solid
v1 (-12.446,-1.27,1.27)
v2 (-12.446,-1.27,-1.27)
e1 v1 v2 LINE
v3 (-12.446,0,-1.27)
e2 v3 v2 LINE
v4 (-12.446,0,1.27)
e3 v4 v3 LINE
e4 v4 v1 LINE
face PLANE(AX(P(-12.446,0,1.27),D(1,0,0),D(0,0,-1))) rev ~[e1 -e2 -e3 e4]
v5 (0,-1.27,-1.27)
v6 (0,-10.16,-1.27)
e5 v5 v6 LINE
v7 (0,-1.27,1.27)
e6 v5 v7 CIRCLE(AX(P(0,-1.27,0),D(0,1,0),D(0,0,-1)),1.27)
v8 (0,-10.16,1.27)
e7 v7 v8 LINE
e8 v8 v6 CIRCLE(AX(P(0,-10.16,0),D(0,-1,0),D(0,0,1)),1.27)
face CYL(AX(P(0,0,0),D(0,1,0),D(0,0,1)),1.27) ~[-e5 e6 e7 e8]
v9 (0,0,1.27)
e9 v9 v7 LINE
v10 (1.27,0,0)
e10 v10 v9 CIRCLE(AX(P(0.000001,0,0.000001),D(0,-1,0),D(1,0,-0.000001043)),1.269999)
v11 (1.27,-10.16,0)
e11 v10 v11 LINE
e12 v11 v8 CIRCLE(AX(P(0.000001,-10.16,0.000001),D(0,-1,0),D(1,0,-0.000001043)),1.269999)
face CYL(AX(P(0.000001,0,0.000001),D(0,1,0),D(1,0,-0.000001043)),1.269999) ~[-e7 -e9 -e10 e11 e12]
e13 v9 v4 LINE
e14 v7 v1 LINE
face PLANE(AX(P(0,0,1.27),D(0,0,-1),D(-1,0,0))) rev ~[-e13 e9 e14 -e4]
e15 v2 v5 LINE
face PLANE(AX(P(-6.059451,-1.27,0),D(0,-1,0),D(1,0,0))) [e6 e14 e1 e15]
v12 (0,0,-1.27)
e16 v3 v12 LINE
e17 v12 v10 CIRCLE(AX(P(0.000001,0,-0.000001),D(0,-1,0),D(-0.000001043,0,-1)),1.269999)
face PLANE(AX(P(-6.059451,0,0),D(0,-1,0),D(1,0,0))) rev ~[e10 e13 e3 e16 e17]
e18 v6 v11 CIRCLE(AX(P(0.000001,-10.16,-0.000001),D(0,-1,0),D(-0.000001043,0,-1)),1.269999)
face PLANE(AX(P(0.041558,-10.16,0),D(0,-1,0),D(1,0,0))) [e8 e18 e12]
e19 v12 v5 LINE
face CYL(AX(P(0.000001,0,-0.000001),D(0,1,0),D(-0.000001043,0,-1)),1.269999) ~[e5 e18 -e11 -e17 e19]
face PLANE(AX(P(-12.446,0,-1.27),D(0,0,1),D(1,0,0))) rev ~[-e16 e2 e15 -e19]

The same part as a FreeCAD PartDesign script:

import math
import FreeCAD as App
import Part
import Sketcher
Q = App.Units.Quantity

doc = App.newDocument("Part")
body = doc.addObject("PartDesign::Body", "Body")

# Sketch on XZ plane
sketch1 = body.newObject("Sketcher::SketchObject", "Sketch")
sketch1.AttachmentSupport = (doc.getObject("XZ_Plane"), [""])
sketch1.MapMode = "FlatFace"
sketch1.addGeometry([
    Part.ArcOfCircle(Part.Circle(App.Vector(0.000001, -0.000001, 0), App.Vector(0, 0, 1), 1.269999), math.radians(-90.00006), math.radians(0.00006)),
    Part.ArcOfCircle(Part.Circle(App.Vector(0.000001, 0.000001, 0), App.Vector(0, 0, 1), 1.269999), math.radians(-0.00006), math.radians(90.00006)),
    Part.ArcOfCircle(Part.Circle(App.Vector(0, 0, 0), App.Vector(0, 0, 1), 1.27), math.radians(90), math.radians(270)),
], False)
sketch1.addConstraint([
    Sketcher.Constraint("Coincident", 0, 2, 1, 1),
    Sketcher.Constraint("Tangent", 1, 2, 2, 1),
    Sketcher.Constraint("Tangent", 2, 2, 0, 1),
    Sketcher.Constraint("Coincident", 0, 3, -1, 1),
    Sketcher.Constraint("Equal", 1, 2),
    Sketcher.Constraint("PointOnObject", 0, 2, -1),
    Sketcher.Constraint("PointOnObject", 1, 2, -2),
    Sketcher.Constraint("PointOnObject", 2, 2, -2),
    Sketcher.Constraint("Radius", 0, Q("0.0499999 in")),
])
pad1 = body.newObject("PartDesign::Pad", "Pad")
pad1.Profile = sketch1
pad1.Length = Q("0.4 in")

# Sketch on XZ plane
sketch2 = body.newObject("Sketcher::SketchObject", "Sketch001")
sketch2.AttachmentSupport = (doc.getObject("XZ_Plane"), [""])
sketch2.MapMode = "FlatFace"
sketch2.addGeometry([
    Part.ArcOfCircle(Part.Circle(App.Vector(0, 0, 0), App.Vector(0, 0, 1), 1.27), math.radians(90), math.radians(270)),
    Part.LineSegment(App.Vector(0, 1.27, 0), App.Vector(-12.446, 1.27, 0)),
    Part.LineSegment(App.Vector(-12.446, 1.27, 0), App.Vector(-12.446, -1.27, 0)),
    Part.LineSegment(App.Vector(-12.446, -1.27, 0), App.Vector(0, -1.27, 0)),
], False)
sketch2.addConstraint([
    Sketcher.Constraint("Tangent", 0, 1, 1, 1),
    Sketcher.Constraint("Coincident", 1, 2, 2, 1),
    Sketcher.Constraint("Coincident", 2, 2, 3, 1),
    Sketcher.Constraint("Tangent", 3, 2, 0, 2),
    Sketcher.Constraint("Horizontal", 1),
    Sketcher.Constraint("Vertical", 2),
    Sketcher.Constraint("Horizontal", 3),
    Sketcher.Constraint("Coincident", 0, 3, -1, 1),
    Sketcher.Constraint("Radius", 0, Q("0.05 in")),
    Sketcher.Constraint("DistanceX", 1, 2, 1, 1, Q("0.49 in")),
])
pad2 = body.newObject("PartDesign::Pad", "Pad001")
pad2.Profile = sketch2
pad2.Length = Q("0.05 in")

doc.recompute()
